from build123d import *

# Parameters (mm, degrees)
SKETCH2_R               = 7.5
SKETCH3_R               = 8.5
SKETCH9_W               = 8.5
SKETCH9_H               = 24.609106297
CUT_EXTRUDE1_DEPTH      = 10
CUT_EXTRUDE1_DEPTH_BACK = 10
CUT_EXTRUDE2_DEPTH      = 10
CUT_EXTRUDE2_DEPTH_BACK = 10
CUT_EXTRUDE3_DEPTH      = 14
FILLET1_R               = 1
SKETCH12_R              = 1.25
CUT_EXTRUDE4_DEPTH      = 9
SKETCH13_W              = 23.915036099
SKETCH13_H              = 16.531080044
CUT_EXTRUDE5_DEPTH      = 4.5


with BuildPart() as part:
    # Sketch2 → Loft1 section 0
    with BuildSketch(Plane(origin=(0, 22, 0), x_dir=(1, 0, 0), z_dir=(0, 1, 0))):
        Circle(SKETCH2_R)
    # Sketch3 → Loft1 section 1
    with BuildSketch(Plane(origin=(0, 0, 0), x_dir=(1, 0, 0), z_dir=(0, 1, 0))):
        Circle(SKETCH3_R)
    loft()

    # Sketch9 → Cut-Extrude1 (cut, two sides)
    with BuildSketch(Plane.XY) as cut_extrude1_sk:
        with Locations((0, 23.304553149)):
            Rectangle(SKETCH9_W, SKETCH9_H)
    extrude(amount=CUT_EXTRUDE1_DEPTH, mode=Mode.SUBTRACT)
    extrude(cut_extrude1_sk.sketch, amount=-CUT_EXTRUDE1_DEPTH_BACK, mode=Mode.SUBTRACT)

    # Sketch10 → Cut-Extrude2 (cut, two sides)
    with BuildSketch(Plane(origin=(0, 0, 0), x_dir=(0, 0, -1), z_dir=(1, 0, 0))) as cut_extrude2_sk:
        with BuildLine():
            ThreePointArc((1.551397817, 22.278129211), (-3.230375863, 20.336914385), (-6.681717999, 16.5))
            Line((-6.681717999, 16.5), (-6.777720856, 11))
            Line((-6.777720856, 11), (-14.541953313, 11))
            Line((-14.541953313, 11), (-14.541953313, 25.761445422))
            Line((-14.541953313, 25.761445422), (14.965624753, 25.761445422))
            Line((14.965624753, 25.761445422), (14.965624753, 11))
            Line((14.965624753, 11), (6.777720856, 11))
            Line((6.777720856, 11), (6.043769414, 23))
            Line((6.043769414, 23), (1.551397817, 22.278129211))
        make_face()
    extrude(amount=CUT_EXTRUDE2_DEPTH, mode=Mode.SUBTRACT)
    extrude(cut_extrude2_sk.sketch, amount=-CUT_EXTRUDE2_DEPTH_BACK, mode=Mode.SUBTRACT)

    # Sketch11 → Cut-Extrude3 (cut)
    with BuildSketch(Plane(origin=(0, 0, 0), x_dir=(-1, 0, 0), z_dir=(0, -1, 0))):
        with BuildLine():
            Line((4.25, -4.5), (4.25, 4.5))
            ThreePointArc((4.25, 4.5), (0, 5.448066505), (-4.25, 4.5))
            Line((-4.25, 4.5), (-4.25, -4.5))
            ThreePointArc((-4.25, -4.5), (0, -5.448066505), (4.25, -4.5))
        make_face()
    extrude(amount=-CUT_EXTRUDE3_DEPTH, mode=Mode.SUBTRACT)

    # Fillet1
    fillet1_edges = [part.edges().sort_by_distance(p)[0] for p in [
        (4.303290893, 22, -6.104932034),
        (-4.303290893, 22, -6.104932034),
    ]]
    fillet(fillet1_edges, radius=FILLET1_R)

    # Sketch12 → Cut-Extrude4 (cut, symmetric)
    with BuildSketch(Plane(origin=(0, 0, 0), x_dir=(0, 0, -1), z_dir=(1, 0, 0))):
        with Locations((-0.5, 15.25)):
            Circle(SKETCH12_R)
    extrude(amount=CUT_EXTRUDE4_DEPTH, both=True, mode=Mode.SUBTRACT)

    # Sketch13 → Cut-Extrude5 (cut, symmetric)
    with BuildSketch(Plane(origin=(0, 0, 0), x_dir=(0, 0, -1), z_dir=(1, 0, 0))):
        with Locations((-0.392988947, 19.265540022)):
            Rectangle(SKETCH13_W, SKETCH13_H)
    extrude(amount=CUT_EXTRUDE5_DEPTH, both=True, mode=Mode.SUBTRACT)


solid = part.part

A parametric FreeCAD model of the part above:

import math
import FreeCAD as App
import Part
import Sketcher
Q = App.Units.Quantity


def edges_at(feature, points):
    """Names of the edges that pass closest to the given points."""
    edges = feature.Shape.Edges
    near = lambda p: min(range(len(edges)), key=lambda i: edges[i].distToShape(Part.Vertex(*p))[0])
    return sorted({f"Edge{near(p) + 1}" for p in points})


def add_polygon(sketch, points):
    """Adds a closed chain of lines whose ends are joined by coincident constraints."""
    first, n = sketch.GeometryCount, len(points)
    for a, b in zip(points, points[1:] + points[:1]):
        sketch.addGeometry(Part.LineSegment(App.Vector(*a, 0), App.Vector(*b, 0)), False)
    for i in range(n):
        sketch.addConstraint(Sketcher.Constraint("Coincident", first + i, 2, first + (i + 1) % n, 1))

doc = App.newDocument("Part")
body = doc.addObject("PartDesign::Body", "Body")

# Sketch on XZ plane
sketch1 = doc.addObject("Sketcher::SketchObject", "Sketch")
body.addObject(sketch1)
sketch1.AttachmentSupport = (doc.XZ_Plane, [""])
sketch1.MapMode = "FlatFace"
sketch1.AttachmentOffset = App.Placement(App.Vector(0, 0, -22), App.Rotation())
sketch1.addGeometry(Part.Circle(App.Vector(0, 0, 0), App.Vector(0, 0, 1), 8), False)
sketch1.addConstraint([
    Sketcher.Constraint("Coincident", 0, 3, -1, 1),
    Sketcher.Constraint("Diameter", 0, Q("15 mm")),
])

# Sketch on XZ plane
sketch2 = doc.addObject("Sketcher::SketchObject", "Sketch001")
body.addObject(sketch2)
sketch2.AttachmentSupport = (doc.XZ_Plane, [""])
sketch2.MapMode = "FlatFace"
sketch2.addGeometry(Part.Circle(App.Vector(0, 0, 0), App.Vector(0, 0, 1), 8), False)
sketch2.addConstraint([
    Sketcher.Constraint("Coincident", 0, 3, -1, 1),
    Sketcher.Constraint("Diameter", 0, Q("17 mm")),
])

additiveloft = doc.addObject("PartDesign::AdditiveLoft", "AdditiveLoft")
body.addObject(additiveloft)
additiveloft.Profile = sketch1
additiveloft.Sections = [sketch2]

# Sketch on XY plane
sketch3 = doc.addObject("Sketcher::SketchObject", "Sketch002")
body.addObject(sketch3)
sketch3.AttachmentSupport = (doc.XY_Plane, [""])
sketch3.MapMode = "FlatFace"
add_polygon(sketch3, [(-4, 36), (-4, 11), (4, 11), (4, 36)])  # lines 0-3
sketch3.addConstraint([
    Sketcher.Constraint("Vertical", 0),
    Sketcher.Constraint("Horizontal", 1),
    Sketcher.Constraint("Vertical", 2),
    Sketcher.Constraint("Horizontal", 3),
    Sketcher.Constraint("DistanceX", 1, 1, 1, 2, Q("8.5 mm")),
    Sketcher.Constraint("DistanceY", -1, 1, 0, 2, Q("11 mm")),
    Sketcher.Constraint("DistanceX", 0, 2, -1, 1, Q("4.25 mm")),
    Sketcher.Constraint("DistanceY", 0, 2, 0, 1, Q("24.609106 mm")),
])
pocket1 = doc.addObject("PartDesign::Pocket", "Pocket")
body.addObject(pocket1)
pocket1.Profile = sketch3
pocket1.Type = "ThroughAll"
pocket1.Midplane = True

# Sketch on YZ plane
sketch4 = doc.addObject("Sketcher::SketchObject", "Sketch003")
body.addObject(sketch4)
sketch4.AttachmentSupport = (doc.YZ_Plane, [""])
sketch4.MapMode = "FlatFace"
sketch4.addGeometry([
    Part.ArcOfCircle(Part.Circle(App.Vector(10.9, -3.4, 0), App.Vector(0, 0, 1), 11.5), math.radians(9), math.radians(61)),  # 0
    Part.LineSegment(App.Vector(22.3, -1.6, 0), App.Vector(23, -6, 0)),  # 1
    Part.LineSegment(App.Vector(23, -6, 0), App.Vector(11, -6.8, 0)),  # 2
    Part.LineSegment(App.Vector(11, -6.8, 0), App.Vector(11, -15, 0)),  # 3
    Part.LineSegment(App.Vector(11, -15, 0), App.Vector(25.8, -15, 0)),  # 4
    Part.LineSegment(App.Vector(25.8, -15, 0), App.Vector(25.8, 14.5, 0)),  # 5
    Part.LineSegment(App.Vector(25.8, 14.5, 0), App.Vector(11, 14.5, 0)),  # 6
    Part.LineSegment(App.Vector(11, 14.5, 0), App.Vector(11, 6.8, 0)),  # 7
    Part.LineSegment(App.Vector(11, 6.8, 0), App.Vector(16.5, 6.7, 0)),  # 8
], False)
sketch4.addConstraint([
    Sketcher.Constraint("Tangent", 0, 1, 1, 1),
    Sketcher.Constraint("Coincident", 1, 2, 2, 1),
    Sketcher.Constraint("Coincident", 2, 2, 3, 1),
    Sketcher.Constraint("Coincident", 3, 2, 4, 1),
    Sketcher.Constraint("Coincident", 4, 2, 5, 1),
    Sketcher.Constraint("Coincident", 5, 2, 6, 1),
    Sketcher.Constraint("Coincident", 6, 2, 7, 1),
    Sketcher.Constraint("Coincident", 7, 2, 8, 1),
    Sketcher.Constraint("Coincident", 8, 2, 0, 2),
    Sketcher.Constraint("Vertical", 3),
    Sketcher.Constraint("Horizontal", 4),
    Sketcher.Constraint("Vertical", 5),
    Sketcher.Constraint("Horizontal", 6),
    Sketcher.Constraint("Vertical", 7),
    Sketcher.Constraint("Symmetric", 2, 2, 7, 2, -1),
    Sketcher.Constraint("Radius", 0, Q("11.5 mm")),
    Sketcher.Constraint("Angle", 8, Q("-1 deg")),
    Sketcher.Constraint("DistanceX", -1, 1, 1, 2, Q("23 mm")),
    Sketcher.Constraint("DistanceX", -1, 1, 2, 2, Q("11 mm")),
    Sketcher.Constraint("Angle", 2, Q("-176.5 deg")),
    Sketcher.Constraint("DistanceX", -1, 1, 8, 2, Q("16.5 mm")),
    Sketcher.Constraint("Distance", 1, Q("4.55 mm")),
    Sketcher.Constraint("DistanceY", 5, 1, 5, 2, Q("29.507578 mm")),
    Sketcher.Constraint("DistanceX", 4, 1, 4, 2, Q("14.761445 mm")),
    Sketcher.Constraint("DistanceY", 3, 2, 3, 1, Q("8.187904 mm")),
    Sketcher.Constraint("DistanceY", 7, 2, 7, 1, Q("7.764232 mm")),
])
pocket2 = doc.addObject("PartDesign::Pocket", "Pocket001")
body.addObject(pocket2)
pocket2.Profile = sketch4
pocket2.Type = "ThroughAll"
pocket2.Midplane = True

# Sketch on XZ plane
sketch5 = doc.addObject("Sketcher::SketchObject", "Sketch004")
body.addObject(sketch5)
sketch5.AttachmentSupport = (doc.XZ_Plane, [""])
sketch5.MapMode = "FlatFace"
sketch5.addGeometry([
    Part.LineSegment(App.Vector(-4, 4, 0), App.Vector(-4, -4, 0)),
    Part.ArcOfCircle(Part.Circle(App.Vector(0, 5, 0), App.Vector(0, 0, 1), 10), math.radians(-115), math.radians(-65)),
    Part.LineSegment(App.Vector(4, -4, 0), App.Vector(4, 4, 0)),
    Part.ArcOfCircle(Part.Circle(App.Vector(0, -5, 0), App.Vector(0, 0, 1), 10), math.radians(65), math.radians(115)),
], False)
sketch5.addConstraint([
    Sketcher.Constraint("Coincident", 0, 2, 1, 1),
    Sketcher.Constraint("Coincident", 1, 2, 2, 1),
    Sketcher.Constraint("Coincident", 2, 2, 3, 1),
    Sketcher.Constraint("Coincident", 3, 2, 0, 1),
    Sketcher.Constraint("Vertical", 0),
    Sketcher.Constraint("Vertical", 2),
    Sketcher.Constraint("Equal", 1, 3),
    Sketcher.Constraint("Symmetric", 1, 3, 3, 3, -1, 1),
    Sketcher.Constraint("Symmetric", 0, 2, 1, 2, -2),
    Sketcher.Constraint("Radius", 1, Q("10 mm")),
    Sketcher.Constraint("DistanceY", 0, 2, 0, 1, Q("9 mm")),
    Sketcher.Constraint("DistanceX", 0, 2, 1, 2, Q("8.5 mm")),
])
pocket3 = doc.addObject("PartDesign::Pocket", "Pocket002")
body.addObject(pocket3)
pocket3.Profile = sketch5
pocket3.Length = 14
doc.recompute()

fillet = doc.addObject("PartDesign::Fillet", "Fillet")
body.addObject(fillet)
fillet.Base = (pocket3, edges_at(pocket3, [(4.303, 22, -6.105), (-4.303, 22, -6.105)]))
fillet.Radius = 1

# Sketch on YZ plane
sketch6 = doc.addObject("Sketcher::SketchObject", "Sketch005")
body.addObject(sketch6)
sketch6.AttachmentSupport = (doc.YZ_Plane, [""])
sketch6.MapMode = "FlatFace"
sketch6.addGeometry(Part.Circle(App.Vector(15.2, 0.5, 0), App.Vector(0, 0, 1), 1.2), False)
sketch6.addConstraint([
    Sketcher.Constraint("Diameter", 0, Q("2.5 mm")),
    Sketcher.Constraint("DistanceY", -1, 1, 0, 3, Q("0.5 mm")),
    Sketcher.Constraint("DistanceX", -1, 1, 0, 3, Q("15.25 mm")),
])
pocket4 = doc.addObject("PartDesign::Pocket", "Pocket003")
body.addObject(pocket4)
pocket4.Profile = sketch6
pocket4.Length = 18
pocket4.Midplane = True

# Sketch on YZ plane
sketch7 = doc.addObject("Sketcher::SketchObject", "Sketch006")
body.addObject(sketch7)
sketch7.AttachmentSupport = (doc.YZ_Plane, [""])
sketch7.MapMode = "FlatFace"
add_polygon(sketch7, [(28, 12), (11, 12), (11, -12), (28, -12)])  # lines 0-3
sketch7.addConstraint([
    Sketcher.Constraint("Horizontal", 0),
    Sketcher.Constraint("Vertical", 1),
    Sketcher.Constraint("Horizontal", 2),
    Sketcher.Constraint("Vertical", 3),
    Sketcher.Constraint("DistanceX", -1, 1, 0, 2, Q("11 mm")),
    Sketcher.Constraint("DistanceX", 0, 2, 0, 1, Q("16.53108 mm")),
    Sketcher.Constraint("DistanceY", 1, 2, 1, 1, Q("23.915036 mm")),
    Sketcher.Constraint("DistanceY", 1, 2, -1, 1, Q("11.564529 mm")),
])
pocket5 = doc.addObject("PartDesign::Pocket", "Pocket004")
body.addObject(pocket5)
pocket5.Profile = sketch7
pocket5.Length = 9
pocket5.Midplane = True

doc.recompute()
